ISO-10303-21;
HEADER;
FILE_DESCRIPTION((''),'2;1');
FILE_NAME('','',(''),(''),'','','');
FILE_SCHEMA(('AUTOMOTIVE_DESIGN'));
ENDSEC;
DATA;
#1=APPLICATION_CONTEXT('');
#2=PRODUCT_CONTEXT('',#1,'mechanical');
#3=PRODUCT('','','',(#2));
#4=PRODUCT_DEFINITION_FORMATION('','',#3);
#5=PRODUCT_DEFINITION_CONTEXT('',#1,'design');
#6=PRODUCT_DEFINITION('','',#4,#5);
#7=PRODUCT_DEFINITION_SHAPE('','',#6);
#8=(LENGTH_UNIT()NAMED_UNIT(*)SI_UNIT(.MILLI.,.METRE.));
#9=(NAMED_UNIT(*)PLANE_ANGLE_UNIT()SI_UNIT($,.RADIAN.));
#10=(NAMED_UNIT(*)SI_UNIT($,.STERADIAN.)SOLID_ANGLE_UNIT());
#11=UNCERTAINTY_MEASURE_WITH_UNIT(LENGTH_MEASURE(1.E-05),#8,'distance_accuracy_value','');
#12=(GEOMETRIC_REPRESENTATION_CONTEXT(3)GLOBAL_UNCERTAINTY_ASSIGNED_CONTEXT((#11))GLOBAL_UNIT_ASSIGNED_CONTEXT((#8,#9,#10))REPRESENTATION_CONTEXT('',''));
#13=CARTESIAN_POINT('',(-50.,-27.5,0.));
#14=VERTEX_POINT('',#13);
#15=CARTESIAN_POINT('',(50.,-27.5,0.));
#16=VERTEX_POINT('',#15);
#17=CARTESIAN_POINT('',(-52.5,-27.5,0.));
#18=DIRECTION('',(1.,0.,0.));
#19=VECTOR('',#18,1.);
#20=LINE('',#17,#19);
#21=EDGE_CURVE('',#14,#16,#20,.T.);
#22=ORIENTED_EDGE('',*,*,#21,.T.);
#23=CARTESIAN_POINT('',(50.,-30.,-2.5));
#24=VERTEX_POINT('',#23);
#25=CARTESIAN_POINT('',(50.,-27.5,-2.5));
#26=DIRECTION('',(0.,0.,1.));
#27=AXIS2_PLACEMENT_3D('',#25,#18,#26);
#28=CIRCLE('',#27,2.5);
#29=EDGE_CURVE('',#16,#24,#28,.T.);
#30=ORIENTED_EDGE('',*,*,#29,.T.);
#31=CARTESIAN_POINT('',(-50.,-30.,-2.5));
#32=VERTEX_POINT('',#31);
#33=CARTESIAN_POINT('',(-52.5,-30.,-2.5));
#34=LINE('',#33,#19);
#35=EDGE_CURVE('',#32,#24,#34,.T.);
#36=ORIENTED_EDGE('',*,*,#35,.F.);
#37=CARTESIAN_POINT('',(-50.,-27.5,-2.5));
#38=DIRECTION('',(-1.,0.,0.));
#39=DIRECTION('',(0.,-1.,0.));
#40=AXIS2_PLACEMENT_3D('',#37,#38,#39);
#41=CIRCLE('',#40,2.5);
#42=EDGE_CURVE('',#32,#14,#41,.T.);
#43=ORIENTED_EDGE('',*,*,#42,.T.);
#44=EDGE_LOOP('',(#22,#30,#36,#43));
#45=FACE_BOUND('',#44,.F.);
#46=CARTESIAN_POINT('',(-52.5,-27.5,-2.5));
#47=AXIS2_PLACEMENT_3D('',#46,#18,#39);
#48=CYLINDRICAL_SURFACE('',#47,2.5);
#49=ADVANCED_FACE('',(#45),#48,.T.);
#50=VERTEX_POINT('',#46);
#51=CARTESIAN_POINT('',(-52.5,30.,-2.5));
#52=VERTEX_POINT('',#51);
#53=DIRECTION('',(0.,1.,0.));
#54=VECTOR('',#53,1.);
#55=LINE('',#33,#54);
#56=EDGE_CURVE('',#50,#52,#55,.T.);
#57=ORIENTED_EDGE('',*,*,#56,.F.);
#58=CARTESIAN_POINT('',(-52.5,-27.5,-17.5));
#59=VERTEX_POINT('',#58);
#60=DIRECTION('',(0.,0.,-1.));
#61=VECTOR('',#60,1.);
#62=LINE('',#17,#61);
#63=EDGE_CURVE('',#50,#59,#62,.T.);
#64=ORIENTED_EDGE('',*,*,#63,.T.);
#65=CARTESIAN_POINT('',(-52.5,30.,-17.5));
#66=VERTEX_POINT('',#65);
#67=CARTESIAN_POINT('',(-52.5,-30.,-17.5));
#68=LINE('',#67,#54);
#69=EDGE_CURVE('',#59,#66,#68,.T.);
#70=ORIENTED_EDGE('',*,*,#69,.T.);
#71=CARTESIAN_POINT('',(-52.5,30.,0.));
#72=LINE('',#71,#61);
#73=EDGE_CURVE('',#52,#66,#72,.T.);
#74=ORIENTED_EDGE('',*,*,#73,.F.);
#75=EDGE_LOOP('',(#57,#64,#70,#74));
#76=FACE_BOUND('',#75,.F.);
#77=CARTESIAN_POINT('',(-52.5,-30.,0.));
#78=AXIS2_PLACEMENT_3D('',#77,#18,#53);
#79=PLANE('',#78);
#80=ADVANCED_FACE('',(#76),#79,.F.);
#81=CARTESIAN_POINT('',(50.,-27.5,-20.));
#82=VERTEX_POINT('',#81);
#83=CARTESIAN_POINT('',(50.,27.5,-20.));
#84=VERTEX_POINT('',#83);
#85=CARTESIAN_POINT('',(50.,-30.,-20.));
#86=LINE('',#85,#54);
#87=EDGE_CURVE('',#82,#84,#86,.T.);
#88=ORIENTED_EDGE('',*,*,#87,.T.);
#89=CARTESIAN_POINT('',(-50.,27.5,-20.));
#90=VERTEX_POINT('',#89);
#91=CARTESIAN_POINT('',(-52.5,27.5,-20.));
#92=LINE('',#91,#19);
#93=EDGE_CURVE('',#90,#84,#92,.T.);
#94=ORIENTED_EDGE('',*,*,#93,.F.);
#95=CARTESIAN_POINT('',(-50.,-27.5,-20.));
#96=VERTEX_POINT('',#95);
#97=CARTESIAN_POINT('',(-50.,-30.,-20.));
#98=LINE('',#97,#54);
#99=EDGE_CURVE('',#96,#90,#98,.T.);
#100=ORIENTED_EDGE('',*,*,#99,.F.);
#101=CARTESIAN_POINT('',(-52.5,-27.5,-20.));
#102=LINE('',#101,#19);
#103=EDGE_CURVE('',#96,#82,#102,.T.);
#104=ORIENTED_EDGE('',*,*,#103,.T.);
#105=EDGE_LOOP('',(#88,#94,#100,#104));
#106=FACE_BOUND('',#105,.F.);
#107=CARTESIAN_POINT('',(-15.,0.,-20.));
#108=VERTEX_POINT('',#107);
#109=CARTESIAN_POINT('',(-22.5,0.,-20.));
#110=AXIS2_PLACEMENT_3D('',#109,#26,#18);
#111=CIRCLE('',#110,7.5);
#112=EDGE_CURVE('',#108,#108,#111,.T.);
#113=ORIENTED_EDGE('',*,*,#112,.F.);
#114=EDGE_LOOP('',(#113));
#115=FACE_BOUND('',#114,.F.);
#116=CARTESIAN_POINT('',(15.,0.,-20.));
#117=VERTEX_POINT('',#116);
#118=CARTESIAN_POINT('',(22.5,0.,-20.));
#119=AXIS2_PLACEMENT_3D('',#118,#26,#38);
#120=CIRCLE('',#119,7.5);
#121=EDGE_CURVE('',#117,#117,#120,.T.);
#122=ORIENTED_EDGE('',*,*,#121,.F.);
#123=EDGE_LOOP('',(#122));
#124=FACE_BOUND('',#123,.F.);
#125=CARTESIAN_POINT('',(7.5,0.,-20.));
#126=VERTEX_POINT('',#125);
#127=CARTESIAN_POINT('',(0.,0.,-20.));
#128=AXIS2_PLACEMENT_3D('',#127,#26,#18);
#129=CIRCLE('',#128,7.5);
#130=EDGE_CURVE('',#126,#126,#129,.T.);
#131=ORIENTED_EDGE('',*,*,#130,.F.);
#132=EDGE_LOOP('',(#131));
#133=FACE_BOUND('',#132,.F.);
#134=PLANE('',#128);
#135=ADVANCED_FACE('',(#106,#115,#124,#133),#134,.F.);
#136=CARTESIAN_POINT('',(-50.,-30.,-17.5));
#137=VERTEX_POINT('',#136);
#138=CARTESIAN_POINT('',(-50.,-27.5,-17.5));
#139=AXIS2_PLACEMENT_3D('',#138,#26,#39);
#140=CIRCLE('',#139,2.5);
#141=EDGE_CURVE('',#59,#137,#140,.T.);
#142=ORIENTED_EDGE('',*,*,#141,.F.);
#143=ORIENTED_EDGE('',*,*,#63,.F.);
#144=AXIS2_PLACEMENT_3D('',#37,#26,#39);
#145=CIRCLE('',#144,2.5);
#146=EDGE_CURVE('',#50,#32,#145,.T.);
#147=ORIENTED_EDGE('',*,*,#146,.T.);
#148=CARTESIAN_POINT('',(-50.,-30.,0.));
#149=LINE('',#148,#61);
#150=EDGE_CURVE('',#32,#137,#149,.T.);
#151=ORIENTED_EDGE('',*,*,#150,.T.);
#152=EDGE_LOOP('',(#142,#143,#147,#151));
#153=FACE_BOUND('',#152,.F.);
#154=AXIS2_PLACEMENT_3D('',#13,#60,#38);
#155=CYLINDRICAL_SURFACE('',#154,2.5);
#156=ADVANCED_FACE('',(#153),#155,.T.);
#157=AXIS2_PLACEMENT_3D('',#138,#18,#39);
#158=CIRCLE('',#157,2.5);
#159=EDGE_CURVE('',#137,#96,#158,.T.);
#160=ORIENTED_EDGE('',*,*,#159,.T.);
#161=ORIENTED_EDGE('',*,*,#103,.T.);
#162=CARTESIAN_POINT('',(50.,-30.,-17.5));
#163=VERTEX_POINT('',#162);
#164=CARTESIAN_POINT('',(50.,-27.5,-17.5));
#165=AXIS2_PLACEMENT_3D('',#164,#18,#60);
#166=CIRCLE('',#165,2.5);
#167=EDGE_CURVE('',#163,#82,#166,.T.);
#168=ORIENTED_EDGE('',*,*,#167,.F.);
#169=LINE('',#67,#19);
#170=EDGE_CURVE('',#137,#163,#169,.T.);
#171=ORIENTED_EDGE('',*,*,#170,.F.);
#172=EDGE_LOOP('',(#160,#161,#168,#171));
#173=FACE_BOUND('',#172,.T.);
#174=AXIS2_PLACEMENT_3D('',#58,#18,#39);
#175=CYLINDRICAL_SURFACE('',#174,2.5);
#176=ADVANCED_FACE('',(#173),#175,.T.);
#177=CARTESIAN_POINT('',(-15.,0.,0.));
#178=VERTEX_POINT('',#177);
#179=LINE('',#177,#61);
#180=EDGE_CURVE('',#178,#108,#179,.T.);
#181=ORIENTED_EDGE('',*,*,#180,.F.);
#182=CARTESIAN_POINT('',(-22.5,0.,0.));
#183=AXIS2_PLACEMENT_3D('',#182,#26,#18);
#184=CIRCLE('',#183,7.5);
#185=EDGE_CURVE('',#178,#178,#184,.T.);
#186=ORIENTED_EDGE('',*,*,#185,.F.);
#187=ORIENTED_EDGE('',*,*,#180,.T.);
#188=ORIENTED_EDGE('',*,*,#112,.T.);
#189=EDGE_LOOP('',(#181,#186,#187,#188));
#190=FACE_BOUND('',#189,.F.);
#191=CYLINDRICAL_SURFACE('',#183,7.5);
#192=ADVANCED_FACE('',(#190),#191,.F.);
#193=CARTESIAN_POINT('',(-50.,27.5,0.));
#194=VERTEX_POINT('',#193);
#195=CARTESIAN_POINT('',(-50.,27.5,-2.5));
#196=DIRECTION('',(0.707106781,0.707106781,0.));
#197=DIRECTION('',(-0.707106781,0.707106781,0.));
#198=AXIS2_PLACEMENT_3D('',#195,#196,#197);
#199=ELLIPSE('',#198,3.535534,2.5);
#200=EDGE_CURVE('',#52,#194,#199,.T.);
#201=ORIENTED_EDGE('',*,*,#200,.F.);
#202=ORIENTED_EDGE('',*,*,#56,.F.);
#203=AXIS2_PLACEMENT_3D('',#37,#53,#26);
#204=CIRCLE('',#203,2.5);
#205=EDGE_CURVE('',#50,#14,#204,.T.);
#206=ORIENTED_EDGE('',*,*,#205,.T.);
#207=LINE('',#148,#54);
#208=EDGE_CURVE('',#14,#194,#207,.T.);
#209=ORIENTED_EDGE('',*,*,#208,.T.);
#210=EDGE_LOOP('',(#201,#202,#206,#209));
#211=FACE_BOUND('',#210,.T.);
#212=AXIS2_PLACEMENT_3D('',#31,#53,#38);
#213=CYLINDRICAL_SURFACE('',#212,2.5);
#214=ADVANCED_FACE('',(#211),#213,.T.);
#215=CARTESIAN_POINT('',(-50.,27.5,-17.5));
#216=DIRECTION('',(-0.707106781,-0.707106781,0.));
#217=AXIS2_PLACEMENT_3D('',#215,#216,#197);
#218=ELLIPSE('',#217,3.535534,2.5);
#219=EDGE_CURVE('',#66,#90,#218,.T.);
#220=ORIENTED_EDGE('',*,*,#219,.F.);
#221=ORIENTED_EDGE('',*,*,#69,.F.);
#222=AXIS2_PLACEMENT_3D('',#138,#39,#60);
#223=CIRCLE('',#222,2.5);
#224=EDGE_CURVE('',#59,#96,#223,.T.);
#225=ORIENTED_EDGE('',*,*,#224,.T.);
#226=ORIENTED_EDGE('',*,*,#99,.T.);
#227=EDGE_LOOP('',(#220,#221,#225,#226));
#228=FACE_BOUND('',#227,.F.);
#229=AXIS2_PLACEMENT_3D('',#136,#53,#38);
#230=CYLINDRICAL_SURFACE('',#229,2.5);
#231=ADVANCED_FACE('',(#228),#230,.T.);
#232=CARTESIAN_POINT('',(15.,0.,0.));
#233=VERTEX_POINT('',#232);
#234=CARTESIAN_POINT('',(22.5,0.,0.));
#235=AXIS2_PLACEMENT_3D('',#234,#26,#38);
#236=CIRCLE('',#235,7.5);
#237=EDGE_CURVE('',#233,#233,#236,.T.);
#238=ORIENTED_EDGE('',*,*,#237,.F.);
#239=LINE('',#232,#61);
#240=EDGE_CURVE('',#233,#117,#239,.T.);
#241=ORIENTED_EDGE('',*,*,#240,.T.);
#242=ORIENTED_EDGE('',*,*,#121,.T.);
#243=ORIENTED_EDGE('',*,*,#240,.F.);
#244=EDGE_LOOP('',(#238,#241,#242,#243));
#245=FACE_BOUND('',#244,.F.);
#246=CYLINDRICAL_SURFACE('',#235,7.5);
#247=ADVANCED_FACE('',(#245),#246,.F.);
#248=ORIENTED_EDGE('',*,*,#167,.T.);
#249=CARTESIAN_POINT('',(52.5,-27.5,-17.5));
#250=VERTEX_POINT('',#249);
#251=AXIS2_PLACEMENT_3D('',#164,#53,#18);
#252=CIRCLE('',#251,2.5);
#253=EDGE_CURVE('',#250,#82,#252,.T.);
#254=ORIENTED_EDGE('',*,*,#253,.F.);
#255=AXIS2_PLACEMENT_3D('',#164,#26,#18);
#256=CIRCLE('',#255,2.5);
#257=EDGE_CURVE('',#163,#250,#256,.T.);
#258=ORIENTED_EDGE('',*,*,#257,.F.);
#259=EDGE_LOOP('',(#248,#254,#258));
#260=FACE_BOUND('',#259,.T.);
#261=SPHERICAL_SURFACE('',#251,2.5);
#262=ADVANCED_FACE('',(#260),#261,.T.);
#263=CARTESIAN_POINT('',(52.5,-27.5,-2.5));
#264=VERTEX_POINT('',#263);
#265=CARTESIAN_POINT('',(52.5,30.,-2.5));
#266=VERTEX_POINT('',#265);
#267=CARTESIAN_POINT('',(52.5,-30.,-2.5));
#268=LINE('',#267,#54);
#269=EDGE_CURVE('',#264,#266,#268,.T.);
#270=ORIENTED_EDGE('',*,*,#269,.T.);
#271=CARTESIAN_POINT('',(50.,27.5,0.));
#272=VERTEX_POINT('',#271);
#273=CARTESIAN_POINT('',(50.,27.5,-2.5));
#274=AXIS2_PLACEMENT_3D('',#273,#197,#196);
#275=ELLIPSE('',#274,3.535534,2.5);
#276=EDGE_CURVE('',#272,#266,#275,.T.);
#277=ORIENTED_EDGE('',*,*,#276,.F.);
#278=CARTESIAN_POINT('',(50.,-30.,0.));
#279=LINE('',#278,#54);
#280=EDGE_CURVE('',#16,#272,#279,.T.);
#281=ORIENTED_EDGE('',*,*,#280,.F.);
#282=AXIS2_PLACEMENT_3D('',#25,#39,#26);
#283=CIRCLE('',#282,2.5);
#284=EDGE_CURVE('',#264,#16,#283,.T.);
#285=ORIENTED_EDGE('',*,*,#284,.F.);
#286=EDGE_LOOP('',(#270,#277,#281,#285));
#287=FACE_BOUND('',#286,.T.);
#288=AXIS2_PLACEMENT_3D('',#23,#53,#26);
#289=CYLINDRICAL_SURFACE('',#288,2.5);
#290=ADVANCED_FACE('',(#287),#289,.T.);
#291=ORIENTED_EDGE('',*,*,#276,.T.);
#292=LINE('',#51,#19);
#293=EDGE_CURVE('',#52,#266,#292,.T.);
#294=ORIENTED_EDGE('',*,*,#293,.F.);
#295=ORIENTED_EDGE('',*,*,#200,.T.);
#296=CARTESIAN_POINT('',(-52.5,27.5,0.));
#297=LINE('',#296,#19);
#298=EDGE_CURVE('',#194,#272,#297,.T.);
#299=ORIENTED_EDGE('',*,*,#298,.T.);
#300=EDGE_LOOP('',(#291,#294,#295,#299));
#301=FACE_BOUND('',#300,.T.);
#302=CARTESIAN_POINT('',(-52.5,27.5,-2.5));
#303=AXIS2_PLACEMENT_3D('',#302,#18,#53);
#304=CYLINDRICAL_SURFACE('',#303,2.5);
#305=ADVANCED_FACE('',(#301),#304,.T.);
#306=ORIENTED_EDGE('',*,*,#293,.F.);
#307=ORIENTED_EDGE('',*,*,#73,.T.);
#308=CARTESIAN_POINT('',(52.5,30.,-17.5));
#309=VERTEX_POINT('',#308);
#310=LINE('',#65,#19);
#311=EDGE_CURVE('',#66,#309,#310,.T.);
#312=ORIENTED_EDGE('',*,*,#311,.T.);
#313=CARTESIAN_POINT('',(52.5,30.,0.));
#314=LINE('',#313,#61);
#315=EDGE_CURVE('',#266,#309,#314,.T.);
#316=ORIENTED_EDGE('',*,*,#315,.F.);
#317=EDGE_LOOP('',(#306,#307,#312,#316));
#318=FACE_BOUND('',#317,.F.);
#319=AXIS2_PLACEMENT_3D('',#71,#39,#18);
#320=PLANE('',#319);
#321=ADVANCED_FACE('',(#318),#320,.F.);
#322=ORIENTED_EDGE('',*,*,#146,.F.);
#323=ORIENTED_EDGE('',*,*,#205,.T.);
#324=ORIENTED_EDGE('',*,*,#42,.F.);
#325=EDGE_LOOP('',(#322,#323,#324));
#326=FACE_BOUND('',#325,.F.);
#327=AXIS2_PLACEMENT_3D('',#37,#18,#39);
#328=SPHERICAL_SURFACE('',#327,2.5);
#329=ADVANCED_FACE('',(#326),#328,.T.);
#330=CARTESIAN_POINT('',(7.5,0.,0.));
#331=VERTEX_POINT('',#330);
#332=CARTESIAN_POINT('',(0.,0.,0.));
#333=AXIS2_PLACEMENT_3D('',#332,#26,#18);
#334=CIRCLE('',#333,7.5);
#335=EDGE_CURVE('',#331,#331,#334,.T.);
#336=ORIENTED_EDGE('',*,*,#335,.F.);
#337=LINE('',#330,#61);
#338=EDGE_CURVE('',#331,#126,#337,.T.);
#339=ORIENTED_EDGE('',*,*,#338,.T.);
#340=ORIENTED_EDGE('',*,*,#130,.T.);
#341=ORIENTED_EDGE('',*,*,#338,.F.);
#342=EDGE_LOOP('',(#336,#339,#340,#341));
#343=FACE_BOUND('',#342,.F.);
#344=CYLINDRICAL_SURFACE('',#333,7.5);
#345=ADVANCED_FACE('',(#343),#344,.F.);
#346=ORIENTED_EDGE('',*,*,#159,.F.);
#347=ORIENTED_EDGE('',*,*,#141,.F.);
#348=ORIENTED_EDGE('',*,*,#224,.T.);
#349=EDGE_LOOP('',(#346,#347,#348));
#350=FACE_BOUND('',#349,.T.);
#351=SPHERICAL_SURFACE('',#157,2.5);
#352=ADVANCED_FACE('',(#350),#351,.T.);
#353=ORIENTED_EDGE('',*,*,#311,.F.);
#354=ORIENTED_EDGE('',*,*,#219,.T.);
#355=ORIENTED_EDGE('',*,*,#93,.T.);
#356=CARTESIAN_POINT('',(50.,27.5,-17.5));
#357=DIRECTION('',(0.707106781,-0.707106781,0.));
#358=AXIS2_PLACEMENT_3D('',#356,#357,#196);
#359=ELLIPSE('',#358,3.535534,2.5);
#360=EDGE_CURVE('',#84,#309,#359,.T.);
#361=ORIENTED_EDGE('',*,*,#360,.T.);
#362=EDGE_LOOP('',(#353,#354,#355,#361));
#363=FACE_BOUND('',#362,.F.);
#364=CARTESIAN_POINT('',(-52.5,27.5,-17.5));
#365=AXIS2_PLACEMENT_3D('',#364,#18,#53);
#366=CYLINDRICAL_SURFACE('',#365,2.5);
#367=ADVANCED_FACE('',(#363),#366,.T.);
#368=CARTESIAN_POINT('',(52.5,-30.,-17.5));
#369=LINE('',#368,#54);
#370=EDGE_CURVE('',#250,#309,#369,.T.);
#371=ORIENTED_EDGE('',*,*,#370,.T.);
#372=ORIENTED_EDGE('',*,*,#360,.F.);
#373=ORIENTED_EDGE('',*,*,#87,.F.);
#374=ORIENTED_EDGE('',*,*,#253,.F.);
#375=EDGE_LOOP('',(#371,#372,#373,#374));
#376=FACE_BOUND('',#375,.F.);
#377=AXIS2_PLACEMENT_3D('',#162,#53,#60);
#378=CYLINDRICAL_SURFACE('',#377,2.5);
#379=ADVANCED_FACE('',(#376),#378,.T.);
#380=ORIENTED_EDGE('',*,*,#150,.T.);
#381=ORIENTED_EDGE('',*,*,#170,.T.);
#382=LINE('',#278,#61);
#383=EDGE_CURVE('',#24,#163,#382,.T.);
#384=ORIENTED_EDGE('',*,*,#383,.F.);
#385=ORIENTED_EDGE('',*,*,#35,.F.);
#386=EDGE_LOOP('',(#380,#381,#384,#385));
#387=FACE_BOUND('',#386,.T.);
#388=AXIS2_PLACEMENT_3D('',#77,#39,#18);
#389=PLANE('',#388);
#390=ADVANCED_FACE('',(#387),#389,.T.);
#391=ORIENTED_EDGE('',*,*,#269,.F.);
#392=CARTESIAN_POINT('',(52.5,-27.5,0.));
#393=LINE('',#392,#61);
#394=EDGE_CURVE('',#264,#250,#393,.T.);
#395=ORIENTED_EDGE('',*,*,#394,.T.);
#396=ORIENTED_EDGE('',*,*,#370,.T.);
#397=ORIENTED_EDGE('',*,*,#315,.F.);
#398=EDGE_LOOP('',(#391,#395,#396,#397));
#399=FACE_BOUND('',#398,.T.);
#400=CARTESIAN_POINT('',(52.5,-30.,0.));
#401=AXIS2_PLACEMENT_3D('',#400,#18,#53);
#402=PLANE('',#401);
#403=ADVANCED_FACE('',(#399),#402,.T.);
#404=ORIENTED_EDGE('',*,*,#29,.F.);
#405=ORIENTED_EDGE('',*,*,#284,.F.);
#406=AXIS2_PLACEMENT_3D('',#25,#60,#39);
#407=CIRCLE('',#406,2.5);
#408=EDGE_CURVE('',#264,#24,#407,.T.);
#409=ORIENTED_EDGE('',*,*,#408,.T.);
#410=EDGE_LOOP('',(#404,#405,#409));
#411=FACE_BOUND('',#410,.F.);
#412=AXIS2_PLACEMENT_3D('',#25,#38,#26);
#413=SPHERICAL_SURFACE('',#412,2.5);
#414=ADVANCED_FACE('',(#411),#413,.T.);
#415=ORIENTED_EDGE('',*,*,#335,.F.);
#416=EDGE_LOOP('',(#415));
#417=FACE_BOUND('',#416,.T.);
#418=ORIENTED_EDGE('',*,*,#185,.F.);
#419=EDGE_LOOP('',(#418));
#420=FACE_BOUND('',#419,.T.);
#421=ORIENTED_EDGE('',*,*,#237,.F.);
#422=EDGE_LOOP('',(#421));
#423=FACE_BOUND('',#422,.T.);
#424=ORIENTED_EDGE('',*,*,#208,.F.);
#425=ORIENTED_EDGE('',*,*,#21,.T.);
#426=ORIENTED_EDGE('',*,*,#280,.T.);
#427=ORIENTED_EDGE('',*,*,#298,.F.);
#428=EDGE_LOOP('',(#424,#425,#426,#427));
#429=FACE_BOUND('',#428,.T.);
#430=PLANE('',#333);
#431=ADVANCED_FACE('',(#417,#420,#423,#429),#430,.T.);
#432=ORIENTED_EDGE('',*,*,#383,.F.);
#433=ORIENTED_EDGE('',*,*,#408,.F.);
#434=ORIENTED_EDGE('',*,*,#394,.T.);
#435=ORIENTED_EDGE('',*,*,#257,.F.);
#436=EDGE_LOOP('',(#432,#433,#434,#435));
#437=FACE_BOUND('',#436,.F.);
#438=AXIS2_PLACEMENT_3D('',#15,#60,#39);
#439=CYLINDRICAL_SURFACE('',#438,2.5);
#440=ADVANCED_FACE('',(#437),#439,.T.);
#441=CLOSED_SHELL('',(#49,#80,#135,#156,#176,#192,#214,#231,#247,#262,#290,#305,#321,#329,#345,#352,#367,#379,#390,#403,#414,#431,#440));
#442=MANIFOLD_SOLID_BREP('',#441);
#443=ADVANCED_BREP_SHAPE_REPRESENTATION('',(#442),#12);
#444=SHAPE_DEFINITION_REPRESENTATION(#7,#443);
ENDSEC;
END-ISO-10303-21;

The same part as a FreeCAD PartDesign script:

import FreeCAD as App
import Part
import Sketcher

V = App.Vector
Q = App.Units.Quantity


def edges_at(feature, points):
    """Names of the edges that pass closest to the given points."""
    edges = feature.Shape.Edges
    near = lambda p: min(range(len(edges)), key=lambda i: edges[i].distToShape(Part.Vertex(*p))[0])
    return sorted({f"Edge{near(p) + 1}" for p in points})

doc = App.newDocument("Part")
body = doc.addObject("PartDesign::Body", "Body")

# Sketch on XY plane
sketch1 = body.newObject("Sketcher::SketchObject", "Sketch")
sketch1.AttachmentSupport = (doc.getObject("XY_Plane"), [""])
sketch1.MapMode = "FlatFace"
sketch1.addGeometry([
    Part.LineSegment(V(-52, 30, 0), V(-52, -30, 0)),
    Part.LineSegment(V(-52, -30, 0), V(52, -30, 0)),
    Part.LineSegment(V(52, -30, 0), V(52, 30, 0)),
    Part.LineSegment(V(52, 30, 0), V(-52, 30, 0)),
], False)
sketch1.addConstraint([
    Sketcher.Constraint("Coincident", 0, 2, 1, 1),
    Sketcher.Constraint("Coincident", 1, 2, 2, 1),
    Sketcher.Constraint("Coincident", 2, 2, 3, 1),
    Sketcher.Constraint("Coincident", 3, 2, 0, 1),
    Sketcher.Constraint("Vertical", 0),
    Sketcher.Constraint("Horizontal", 1),
    Sketcher.Constraint("Vertical", 2),
    Sketcher.Constraint("Horizontal", 3),
    Sketcher.Constraint("Symmetric", 0, 2, 2, 2, -1, 1),
    Sketcher.Constraint("DistanceX", 1, 1, 1, 2, Q("105 mm")),
    Sketcher.Constraint("DistanceY", 0, 2, 0, 1, Q("60 mm")),
])
pad1 = body.newObject("PartDesign::Pad", "Pad")
pad1.Profile = sketch1
pad1.Length = 20
pad1.Reversed = True

# Sketch on XY plane
sketch2 = body.newObject("Sketcher::SketchObject", "Sketch001")
sketch2.AttachmentSupport = (doc.getObject("XY_Plane"), [""])
sketch2.MapMode = "FlatFace"
sketch2.addGeometry([
    Part.Circle(V(0, 0, 0), V(0, 0, 1), 8),
    Part.Circle(V(-22, 0, 0), V(0, 0, 1), 8),
    Part.Circle(V(22, 0, 0), V(0, 0, 1), 8),
], False)
sketch2.addConstraint([
    Sketcher.Constraint("Coincident", 0, 3, -1, 1),
    Sketcher.Constraint("Equal", 0, 1),
    Sketcher.Constraint("Equal", 1, 2),
    Sketcher.Constraint("Symmetric", 1, 3, 2, 3, -1, 1),
    Sketcher.Constraint("PointOnObject", 1, 3, -1),
    Sketcher.Constraint("Diameter", 0, Q("15 mm")),
    Sketcher.Constraint("DistanceX", 1, 3, 2, 3, Q("45 mm")),
])
pocket1 = body.newObject("PartDesign::Pocket", "Pocket")
pocket1.Profile = sketch2
pocket1.Length = 68.6

# Sketch on XY plane
sketch3 = body.newObject("Sketcher::SketchObject", "Sketch002")
sketch3.AttachmentSupport = (doc.getObject("XY_Plane"), [""])
sketch3.MapMode = "FlatFace"
sketch3.addGeometry([
    Part.Circle(V(0, 0, 0), V(0, 0, 1), 8),
    Part.Circle(V(-22, 0, 0), V(0, 0, 1), 8),
    Part.Circle(V(22, 0, 0), V(0, 0, 1), 8),
], False)
sketch3.addConstraint([
    Sketcher.Constraint("Coincident", 0, 3, -1, 1),
    Sketcher.Constraint("Equal", 0, 1),
    Sketcher.Constraint("Equal", 1, 2),
    Sketcher.Constraint("Symmetric", 1, 3, 2, 3, -1, 1),
    Sketcher.Constraint("PointOnObject", 1, 3, -1),
    Sketcher.Constraint("Diameter", 0, Q("15 mm")),
    Sketcher.Constraint("DistanceX", 1, 3, 2, 3, Q("45 mm")),
])
pocket2 = body.newObject("PartDesign::Pocket", "Pocket001")
pocket2.Profile = sketch3
pocket2.Length = 55.5
doc.recompute()

fillet = body.newObject("PartDesign::Fillet", "Fillet")
fillet.Base = (pocket2, edges_at(pocket2, [
    (0, -30, 0),
    (52.5, 0, 0),
    (52.5, 0, -20),
    (52.5, -30, -10),
    (0, -30, -20),
    (-52.5, -30, -10),
    (-52.5, 0, 0),
    (-52.5, 0, -20),
    (0, 30, 0),
    (0, 30, -20),
]))
fillet.Radius = 2.5

doc.recompute()
